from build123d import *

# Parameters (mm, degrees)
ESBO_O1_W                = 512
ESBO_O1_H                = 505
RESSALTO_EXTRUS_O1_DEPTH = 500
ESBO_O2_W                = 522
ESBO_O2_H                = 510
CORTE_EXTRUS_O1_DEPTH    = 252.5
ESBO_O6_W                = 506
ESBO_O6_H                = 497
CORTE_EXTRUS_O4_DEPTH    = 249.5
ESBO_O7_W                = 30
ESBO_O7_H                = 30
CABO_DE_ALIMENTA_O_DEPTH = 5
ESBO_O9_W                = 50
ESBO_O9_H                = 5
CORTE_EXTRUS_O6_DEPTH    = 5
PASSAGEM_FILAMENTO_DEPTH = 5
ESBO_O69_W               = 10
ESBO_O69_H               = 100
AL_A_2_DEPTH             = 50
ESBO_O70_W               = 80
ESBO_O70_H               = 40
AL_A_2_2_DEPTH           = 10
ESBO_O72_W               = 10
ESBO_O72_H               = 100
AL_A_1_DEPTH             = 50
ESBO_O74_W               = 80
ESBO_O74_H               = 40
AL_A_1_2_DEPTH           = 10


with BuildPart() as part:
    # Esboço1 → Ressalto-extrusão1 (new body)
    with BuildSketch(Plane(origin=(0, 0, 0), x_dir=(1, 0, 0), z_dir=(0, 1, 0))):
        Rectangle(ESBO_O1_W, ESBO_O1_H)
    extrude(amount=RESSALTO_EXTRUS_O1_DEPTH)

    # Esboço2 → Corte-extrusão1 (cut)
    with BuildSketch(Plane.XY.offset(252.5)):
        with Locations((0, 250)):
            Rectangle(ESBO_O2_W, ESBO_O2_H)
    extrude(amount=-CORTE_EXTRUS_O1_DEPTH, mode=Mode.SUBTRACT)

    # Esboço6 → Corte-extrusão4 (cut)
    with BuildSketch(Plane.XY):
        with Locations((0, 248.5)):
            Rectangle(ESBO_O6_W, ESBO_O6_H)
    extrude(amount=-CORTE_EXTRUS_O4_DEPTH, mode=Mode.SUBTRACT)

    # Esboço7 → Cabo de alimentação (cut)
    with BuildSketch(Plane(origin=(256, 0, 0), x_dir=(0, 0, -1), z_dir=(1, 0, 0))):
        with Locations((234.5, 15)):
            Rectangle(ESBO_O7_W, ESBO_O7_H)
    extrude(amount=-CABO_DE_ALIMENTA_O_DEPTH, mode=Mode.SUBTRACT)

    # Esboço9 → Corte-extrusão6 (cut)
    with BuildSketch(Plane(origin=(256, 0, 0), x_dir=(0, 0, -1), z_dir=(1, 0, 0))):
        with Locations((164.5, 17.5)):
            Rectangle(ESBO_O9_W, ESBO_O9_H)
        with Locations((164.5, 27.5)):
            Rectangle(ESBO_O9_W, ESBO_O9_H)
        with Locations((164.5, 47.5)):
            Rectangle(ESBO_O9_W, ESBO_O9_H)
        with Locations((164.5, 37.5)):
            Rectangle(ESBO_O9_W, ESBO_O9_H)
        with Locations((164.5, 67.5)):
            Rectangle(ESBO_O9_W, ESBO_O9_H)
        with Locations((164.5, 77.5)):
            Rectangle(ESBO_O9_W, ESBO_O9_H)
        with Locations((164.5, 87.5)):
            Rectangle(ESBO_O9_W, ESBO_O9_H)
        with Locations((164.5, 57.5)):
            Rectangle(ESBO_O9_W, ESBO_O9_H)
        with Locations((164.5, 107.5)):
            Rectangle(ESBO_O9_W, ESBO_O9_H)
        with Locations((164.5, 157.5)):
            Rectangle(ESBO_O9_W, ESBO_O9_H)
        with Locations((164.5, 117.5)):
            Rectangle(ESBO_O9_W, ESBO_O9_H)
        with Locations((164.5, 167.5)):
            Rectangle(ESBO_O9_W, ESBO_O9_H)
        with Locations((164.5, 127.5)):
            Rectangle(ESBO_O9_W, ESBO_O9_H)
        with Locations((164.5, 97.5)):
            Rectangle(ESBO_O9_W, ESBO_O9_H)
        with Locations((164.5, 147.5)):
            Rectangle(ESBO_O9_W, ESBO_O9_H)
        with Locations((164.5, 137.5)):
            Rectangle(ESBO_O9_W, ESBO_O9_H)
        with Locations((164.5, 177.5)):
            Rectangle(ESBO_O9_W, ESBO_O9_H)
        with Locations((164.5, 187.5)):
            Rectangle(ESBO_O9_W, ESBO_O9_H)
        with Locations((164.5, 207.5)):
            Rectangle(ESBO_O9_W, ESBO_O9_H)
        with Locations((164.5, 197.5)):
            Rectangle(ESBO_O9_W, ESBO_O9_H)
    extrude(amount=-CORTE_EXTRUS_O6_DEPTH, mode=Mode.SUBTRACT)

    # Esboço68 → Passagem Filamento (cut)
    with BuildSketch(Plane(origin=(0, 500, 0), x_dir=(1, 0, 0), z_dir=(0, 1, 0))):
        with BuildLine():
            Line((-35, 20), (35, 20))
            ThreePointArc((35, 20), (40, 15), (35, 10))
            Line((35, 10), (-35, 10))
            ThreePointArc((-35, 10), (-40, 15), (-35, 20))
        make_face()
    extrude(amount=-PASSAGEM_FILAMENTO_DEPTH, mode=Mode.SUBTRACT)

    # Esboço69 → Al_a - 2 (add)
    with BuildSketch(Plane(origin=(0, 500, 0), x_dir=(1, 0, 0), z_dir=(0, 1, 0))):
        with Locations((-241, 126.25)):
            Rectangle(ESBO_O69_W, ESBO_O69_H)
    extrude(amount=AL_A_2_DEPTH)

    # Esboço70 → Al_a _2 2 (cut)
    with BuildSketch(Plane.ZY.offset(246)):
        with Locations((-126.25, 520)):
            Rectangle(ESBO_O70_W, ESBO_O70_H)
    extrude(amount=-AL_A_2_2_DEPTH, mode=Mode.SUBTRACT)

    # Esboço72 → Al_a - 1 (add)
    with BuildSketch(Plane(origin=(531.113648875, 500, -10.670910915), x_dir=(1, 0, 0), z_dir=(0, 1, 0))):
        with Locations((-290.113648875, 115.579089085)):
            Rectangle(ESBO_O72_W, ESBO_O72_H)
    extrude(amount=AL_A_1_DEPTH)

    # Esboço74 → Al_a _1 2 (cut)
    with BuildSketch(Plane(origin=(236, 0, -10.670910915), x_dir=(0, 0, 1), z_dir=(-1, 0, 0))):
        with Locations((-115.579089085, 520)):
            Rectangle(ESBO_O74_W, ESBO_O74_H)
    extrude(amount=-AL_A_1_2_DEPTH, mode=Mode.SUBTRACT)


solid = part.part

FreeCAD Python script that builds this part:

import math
import FreeCAD as App
import Part
import Sketcher

doc = App.newDocument("Part")
params = doc.addObject("Spreadsheet::Sheet", "Params")
for row, (alias, value) in enumerate([
    ("sketch1_width", "512 mm"),
    ("sketch1_height", "505 mm"),
    ("pad1_length", "500 mm"),
    ("sketch2_width", "522 mm"),
    ("sketch2_height", "510 mm"),
    ("pocket1_length", "252.5 mm"),
    ("sketch3_width", "506 mm"),
    ("sketch3_height", "497 mm"),
    ("pocket2_length", "249.5 mm"),
    ("sketch4_width", "30 mm"),
    ("pocket3_length", "5 mm"),
    ("sketch5_width", "5 mm"),
    ("sketch5_height", "50 mm"),
    ("pocket4_length", "5 mm"),
    ("sketch6_radius", "5 mm"),
    ("sketch6_width", "70 mm"),
    ("pocket5_length", "5 mm"),
    ("sketch7_width", "10 mm"),
    ("sketch7_height", "100 mm"),
    ("pad2_length", "50 mm"),
    ("sketch8_width", "40 mm"),
    ("sketch8_height", "80 mm"),
    ("pocket6_length", "10 mm"),
    ("sketch9_width", "10 mm"),
    ("sketch9_height", "100 mm"),
    ("pad3_length", "50 mm"),
    ("sketch10_width", "40 mm"),
    ("sketch10_height", "80 mm"),
    ("pocket7_length", "10 mm"),
], start=1):
    params.set(f"A{row}", alias)
    params.set(f"B{row}", "=" + value)
    params.setAlias(f"B{row}", alias)

body = doc.addObject("PartDesign::Body", "Body")

sketch1 = body.newObject("Sketcher::SketchObject", "Sketch")
sketch1.AttachmentSupport = (doc.getObject("XZ_Plane"), [""])
sketch1.MapMode = "FlatFace"
sketch1.addGeometry(Part.LineSegment(App.Vector(-256, -252, 0), App.Vector(-256, 252, 0)), False)
sketch1.addGeometry(Part.LineSegment(App.Vector(-256, 252, 0), App.Vector(256, 252, 0)), False)
sketch1.addGeometry(Part.LineSegment(App.Vector(256, 252, 0), App.Vector(256, -252, 0)), False)
sketch1.addGeometry(Part.LineSegment(App.Vector(256, -252, 0), App.Vector(-256, -252, 0)), False)
sketch1.addConstraint(Sketcher.Constraint("Coincident", 0, 2, 1, 1))
sketch1.addConstraint(Sketcher.Constraint("Coincident", 1, 2, 2, 1))
sketch1.addConstraint(Sketcher.Constraint("Coincident", 2, 2, 3, 1))
sketch1.addConstraint(Sketcher.Constraint("Coincident", 3, 2, 0, 1))
sketch1.addConstraint(Sketcher.Constraint("Vertical", 0))
sketch1.addConstraint(Sketcher.Constraint("Horizontal", 1))
sketch1.addConstraint(Sketcher.Constraint("Vertical", 2))
sketch1.addConstraint(Sketcher.Constraint("Horizontal", 3))
sketch1.addConstraint(Sketcher.Constraint("Symmetric", 0, 2, 2, 2, -1, 1))
sketch1.addConstraint(Sketcher.Constraint("DistanceX", 1, 1, 1, 2, 512.0))
sketch1.addConstraint(Sketcher.Constraint("DistanceY", 0, 1, 0, 2, 505.0))
sketch1.setExpression("Constraints[9]", "Params.sketch1_width")
sketch1.setExpression("Constraints[10]", "Params.sketch1_height")
pad1 = body.newObject("PartDesign::Pad", "Pad")
pad1.Profile = sketch1
pad1.setExpression("Length", "Params.pad1_length")
pad1.Reversed = True

sketch2 = body.newObject("Sketcher::SketchObject", "Sketch001")
sketch2.AttachmentSupport = (doc.getObject("XY_Plane"), [""])
sketch2.MapMode = "FlatFace"
sketch2.AttachmentOffset = App.Placement(App.Vector(0, 0, 252.5), App.Rotation())
sketch2.addGeometry(Part.LineSegment(App.Vector(-261, 505, 0), App.Vector(-261, -5, 0)), False)
sketch2.addGeometry(Part.LineSegment(App.Vector(-261, -5, 0), App.Vector(261, -5, 0)), False)
sketch2.addGeometry(Part.LineSegment(App.Vector(261, -5, 0), App.Vector(261, 505, 0)), False)
sketch2.addGeometry(Part.LineSegment(App.Vector(261, 505, 0), App.Vector(-261, 505, 0)), False)
sketch2.addConstraint(Sketcher.Constraint("Coincident", 0, 2, 1, 1))
sketch2.addConstraint(Sketcher.Constraint("Coincident", 1, 2, 2, 1))
sketch2.addConstraint(Sketcher.Constraint("Coincident", 2, 2, 3, 1))
sketch2.addConstraint(Sketcher.Constraint("Coincident", 3, 2, 0, 1))
sketch2.addConstraint(Sketcher.Constraint("Vertical", 0))
sketch2.addConstraint(Sketcher.Constraint("Horizontal", 1))
sketch2.addConstraint(Sketcher.Constraint("Vertical", 2))
sketch2.addConstraint(Sketcher.Constraint("Horizontal", 3))
sketch2.addConstraint(Sketcher.Constraint("DistanceX", 1, 1, 1, 2, 522.0))
sketch2.addConstraint(Sketcher.Constraint("DistanceY", 0, 2, 0, 1, 510.0))
sketch2.addConstraint(Sketcher.Constraint("DistanceX", 0, 2, -1, 1, 261.0))
sketch2.addConstraint(Sketcher.Constraint("DistanceY", 0, 2, -1, 1, 5.0))
sketch2.setExpression("Constraints[8]", "Params.sketch2_width")
sketch2.setExpression("Constraints[9]", "Params.sketch2_height")
pocket1 = body.newObject("PartDesign::Pocket", "Pocket")
pocket1.Profile = sketch2
pocket1.setExpression("Length", "Params.pocket1_length")

sketch3 = body.newObject("Sketcher::SketchObject", "Sketch002")
sketch3.AttachmentSupport = (doc.getObject("XY_Plane"), [""])
sketch3.MapMode = "FlatFace"
sketch3.addGeometry(Part.LineSegment(App.Vector(-253, 497, 0), App.Vector(-253, 0, 0)), False)
sketch3.addGeometry(Part.LineSegment(App.Vector(-253, 0, 0), App.Vector(253, 0, 0)), False)
sketch3.addGeometry(Part.LineSegment(App.Vector(253, 0, 0), App.Vector(253, 497, 0)), False)
sketch3.addGeometry(Part.LineSegment(App.Vector(253, 497, 0), App.Vector(-253, 497, 0)), False)
sketch3.addConstraint(Sketcher.Constraint("Coincident", 0, 2, 1, 1))
sketch3.addConstraint(Sketcher.Constraint("Coincident", 1, 2, 2, 1))
sketch3.addConstraint(Sketcher.Constraint("Coincident", 2, 2, 3, 1))
sketch3.addConstraint(Sketcher.Constraint("Coincident", 3, 2, 0, 1))
sketch3.addConstraint(Sketcher.Constraint("Vertical", 0))
sketch3.addConstraint(Sketcher.Constraint("Horizontal", 1))
sketch3.addConstraint(Sketcher.Constraint("Vertical", 2))
sketch3.addConstraint(Sketcher.Constraint("Horizontal", 3))
sketch3.addConstraint(Sketcher.Constraint("Symmetric", 0, 2, 1, 2, -1, 1))
sketch3.addConstraint(Sketcher.Constraint("DistanceX", 1, 1, 1, 2, 506.0))
sketch3.addConstraint(Sketcher.Constraint("DistanceY", 0, 2, 0, 1, 497.0))
sketch3.setExpression("Constraints[9]", "Params.sketch3_width")
sketch3.setExpression("Constraints[10]", "Params.sketch3_height")
pocket2 = body.newObject("PartDesign::Pocket", "Pocket001")
pocket2.Profile = sketch3
pocket2.setExpression("Length", "Params.pocket2_length")

sketch4 = body.newObject("Sketcher::SketchObject", "Sketch003")
sketch4.AttachmentSupport = (doc.getObject("YZ_Plane"), [""])
sketch4.MapMode = "FlatFace"
sketch4.AttachmentOffset = App.Placement(App.Vector(0, 0, 256), App.Rotation())
sketch4.addGeometry(Part.LineSegment(App.Vector(30, -220, 0), App.Vector(0, -220, 0)), False)
sketch4.addGeometry(Part.LineSegment(App.Vector(0, -220, 0), App.Vector(0, -250, 0)), False)
sketch4.addGeometry(Part.LineSegment(App.Vector(0, -250, 0), App.Vector(30, -250, 0)), False)
sketch4.addGeometry(Part.LineSegment(App.Vector(30, -250, 0), App.Vector(30, -220, 0)), False)
sketch4.addConstraint(Sketcher.Constraint("Coincident", 0, 2, 1, 1))
sketch4.addConstraint(Sketcher.Constraint("Coincident", 1, 2, 2, 1))
sketch4.addConstraint(Sketcher.Constraint("Coincident", 2, 2, 3, 1))
sketch4.addConstraint(Sketcher.Constraint("Coincident", 3, 2, 0, 1))
sketch4.addConstraint(Sketcher.Constraint("Horizontal", 0))
sketch4.addConstraint(Sketcher.Constraint("Vertical", 1))
sketch4.addConstraint(Sketcher.Constraint("Horizontal", 2))
sketch4.addConstraint(Sketcher.Constraint("Vertical", 3))
sketch4.addConstraint(Sketcher.Constraint("PointOnObject", 0, 2, -2))
sketch4.addConstraint(Sketcher.Constraint("Equal", 2, 1))
sketch4.addConstraint(Sketcher.Constraint("DistanceX", 0, 2, 0, 1, 30.0))
sketch4.addConstraint(Sketcher.Constraint("DistanceY", 0, 2, -1, 1, 219.5))
sketch4.setExpression("Constraints[10]", "Params.sketch4_width")
pocket3 = body.newObject("PartDesign::Pocket", "Pocket002")
pocket3.Profile = sketch4
pocket3.setExpression("Length", "Params.pocket3_length")

sketch5 = body.newObject("Sketcher::SketchObject", "Sketch004")
sketch5.AttachmentSupport = (doc.getObject("YZ_Plane"), [""])
sketch5.MapMode = "FlatFace"
sketch5.AttachmentOffset = App.Placement(App.Vector(0, 0, 256), App.Rotation())
sketch5.addGeometry(Part.LineSegment(App.Vector(20, -140, 0), App.Vector(15, -140, 0)), False)
sketch5.addGeometry(Part.LineSegment(App.Vector(15, -140, 0), App.Vector(15, -190, 0)), False)
sketch5.addGeometry(Part.LineSegment(App.Vector(15, -190, 0), App.Vector(20, -190, 0)), False)
sketch5.addGeometry(Part.LineSegment(App.Vector(20, -190, 0), App.Vector(20, -140, 0)), False)
sketch5.addGeometry(Part.LineSegment(App.Vector(30, -140, 0), App.Vector(25, -140, 0)), False)
sketch5.addGeometry(Part.LineSegment(App.Vector(25, -140, 0), App.Vector(25, -190, 0)), False)
sketch5.addGeometry(Part.LineSegment(App.Vector(25, -190, 0), App.Vector(30, -190, 0)), False)
sketch5.addGeometry(Part.LineSegment(App.Vector(30, -190, 0), App.Vector(30, -140, 0)), False)
sketch5.addGeometry(Part.LineSegment(App.Vector(50, -140, 0), App.Vector(45, -140, 0)), False)
sketch5.addGeometry(Part.LineSegment(App.Vector(45, -140, 0), App.Vector(45, -190, 0)), False)
sketch5.addGeometry(Part.LineSegment(App.Vector(45, -190, 0), App.Vector(50, -190, 0)), False)
sketch5.addGeometry(Part.LineSegment(App.Vector(50, -190, 0), App.Vector(50, -140, 0)), False)
sketch5.addGeometry(Part.LineSegment(App.Vector(40, -140, 0), App.Vector(35, -140, 0)), False)
sketch5.addGeometry(Part.LineSegment(App.Vector(35, -140, 0), App.Vector(35, -190, 0)), False)
sketch5.addGeometry(Part.LineSegment(App.Vector(35, -190, 0), App.Vector(40, -190, 0)), False)
sketch5.addGeometry(Part.LineSegment(App.Vector(40, -190, 0), App.Vector(40, -140, 0)), False)
sketch5.addGeometry(Part.LineSegment(App.Vector(70, -140, 0), App.Vector(65, -140, 0)), False)
sketch5.addGeometry(Part.LineSegment(App.Vector(65, -140, 0), App.Vector(65, -190, 0)), False)
sketch5.addGeometry(Part.LineSegment(App.Vector(65, -190, 0), App.Vector(70, -190, 0)), False)
sketch5.addGeometry(Part.LineSegment(App.Vector(70, -190, 0), App.Vector(70, -140, 0)), False)
sketch5.addGeometry(Part.LineSegment(App.Vector(80, -140, 0), App.Vector(75, -140, 0)), False)
sketch5.addGeometry(Part.LineSegment(App.Vector(75, -140, 0), App.Vector(75, -190, 0)), False)
sketch5.addGeometry(Part.LineSegment(App.Vector(75, -190, 0), App.Vector(80, -190, 0)), False)
sketch5.addGeometry(Part.LineSegment(App.Vector(80, -190, 0), App.Vector(80, -140, 0)), False)
sketch5.addGeometry(Part.LineSegment(App.Vector(90, -140, 0), App.Vector(85, -140, 0)), False)
sketch5.addGeometry(Part.LineSegment(App.Vector(85, -140, 0), App.Vector(85, -190, 0)), False)
sketch5.addGeometry(Part.LineSegment(App.Vector(85, -190, 0), App.Vector(90, -190, 0)), False)
sketch5.addGeometry(Part.LineSegment(App.Vector(90, -190, 0), App.Vector(90, -140, 0)), False)
sketch5.addGeometry(Part.LineSegment(App.Vector(60, -140, 0), App.Vector(55, -140, 0)), False)
sketch5.addGeometry(Part.LineSegment(App.Vector(55, -140, 0), App.Vector(55, -190, 0)), False)
sketch5.addGeometry(Part.LineSegment(App.Vector(55, -190, 0), App.Vector(60, -190, 0)), False)
sketch5.addGeometry(Part.LineSegment(App.Vector(60, -190, 0), App.Vector(60, -140, 0)), False)
sketch5.addGeometry(Part.LineSegment(App.Vector(110, -140, 0), App.Vector(105, -140, 0)), False)
sketch5.addGeometry(Part.LineSegment(App.Vector(105, -140, 0), App.Vector(105, -190, 0)), False)
sketch5.addGeometry(Part.LineSegment(App.Vector(105, -190, 0), App.Vector(110, -190, 0)), False)
sketch5.addGeometry(Part.LineSegment(App.Vector(110, -190, 0), App.Vector(110, -140, 0)), False)
sketch5.addGeometry(Part.LineSegment(App.Vector(160, -140, 0), App.Vector(155, -140, 0)), False)
sketch5.addGeometry(Part.LineSegment(App.Vector(155, -140, 0), App.Vector(155, -190, 0)), False)
sketch5.addGeometry(Part.LineSegment(App.Vector(155, -190, 0), App.Vector(160, -190, 0)), False)
sketch5.addGeometry(Part.LineSegment(App.Vector(160, -190, 0), App.Vector(160, -140, 0)), False)
sketch5.addGeometry(Part.LineSegment(App.Vector(120, -140, 0), App.Vector(115, -140, 0)), False)
sketch5.addGeometry(Part.LineSegment(App.Vector(115, -140, 0), App.Vector(115, -190, 0)), False)
sketch5.addGeometry(Part.LineSegment(App.Vector(115, -190, 0), App.Vector(120, -190, 0)), False)
sketch5.addGeometry(Part.LineSegment(App.Vector(120, -190, 0), App.Vector(120, -140, 0)), False)
sketch5.addGeometry(Part.LineSegment(App.Vector(170, -140, 0), App.Vector(165, -140, 0)), False)
sketch5.addGeometry(Part.LineSegment(App.Vector(165, -140, 0), App.Vector(165, -190, 0)), False)
sketch5.addGeometry(Part.LineSegment(App.Vector(165, -190, 0), App.Vector(170, -190, 0)), False)
sketch5.addGeometry(Part.LineSegment(App.Vector(170, -190, 0), App.Vector(170, -140, 0)), False)
sketch5.addGeometry(Part.LineSegment(App.Vector(130, -140, 0), App.Vector(125, -140, 0)), False)
sketch5.addGeometry(Part.LineSegment(App.Vector(125, -140, 0), App.Vector(125, -190, 0)), False)
sketch5.addGeometry(Part.LineSegment(App.Vector(125, -190, 0), App.Vector(130, -190, 0)), False)
sketch5.addGeometry(Part.LineSegment(App.Vector(130, -190, 0), App.Vector(130, -140, 0)), False)
sketch5.addGeometry(Part.LineSegment(App.Vector(100, -140, 0), App.Vector(95, -140, 0)), False)
sketch5.addGeometry(Part.LineSegment(App.Vector(95, -140, 0), App.Vector(95, -190, 0)), False)
sketch5.addGeometry(Part.LineSegment(App.Vector(95, -190, 0), App.Vector(100, -190, 0)), False)
sketch5.addGeometry(Part.LineSegment(App.Vector(100, -190, 0), App.Vector(100, -140, 0)), False)
sketch5.addGeometry(Part.LineSegment(App.Vector(150, -140, 0), App.Vector(145, -140, 0)), False)
sketch5.addGeometry(Part.LineSegment(App.Vector(145, -140, 0), App.Vector(145, -190, 0)), False)
sketch5.addGeometry(Part.LineSegment(App.Vector(145, -190, 0), App.Vector(150, -190, 0)), False)
sketch5.addGeometry(Part.LineSegment(App.Vector(150, -190, 0), App.Vector(150, -140, 0)), False)
sketch5.addGeometry(Part.LineSegment(App.Vector(140, -140, 0), App.Vector(135, -140, 0)), False)
sketch5.addGeometry(Part.LineSegment(App.Vector(135, -140, 0), App.Vector(135, -190, 0)), False)
sketch5.addGeometry(Part.LineSegment(App.Vector(135, -190, 0), App.Vector(140, -190, 0)), False)
sketch5.addGeometry(Part.LineSegment(App.Vector(140, -190, 0), App.Vector(140, -140, 0)), False)
sketch5.addGeometry(Part.LineSegment(App.Vector(180, -140, 0), App.Vector(175, -140, 0)), False)
sketch5.addGeometry(Part.LineSegment(App.Vector(175, -140, 0), App.Vector(175, -190, 0)), False)
sketch5.addGeometry(Part.LineSegment(App.Vector(175, -190, 0), App.Vector(180, -190, 0)), False)
sketch5.addGeometry(Part.LineSegment(App.Vector(180, -190, 0), App.Vector(180, -140, 0)), False)
sketch5.addGeometry(Part.LineSegment(App.Vector(190, -140, 0), App.Vector(185, -140, 0)), False)
sketch5.addGeometry(Part.LineSegment(App.Vector(185, -140, 0), App.Vector(185, -190, 0)), False)
sketch5.addGeometry(Part.LineSegment(App.Vector(185, -190, 0), App.Vector(190, -190, 0)), False)
sketch5.addGeometry(Part.LineSegment(App.Vector(190, -190, 0), App.Vector(190, -140, 0)), False)
sketch5.addGeometry(Part.LineSegment(App.Vector(210, -140, 0), App.Vector(205, -140, 0)), False)
sketch5.addGeometry(Part.LineSegment(App.Vector(205, -140, 0), App.Vector(205, -190, 0)), False)
sketch5.addGeometry(Part.LineSegment(App.Vector(205, -190, 0), App.Vector(210, -190, 0)), False)
sketch5.addGeometry(Part.LineSegment(App.Vector(210, -190, 0), App.Vector(210, -140, 0)), False)
sketch5.addGeometry(Part.LineSegment(App.Vector(200, -140, 0), App.Vector(195, -140, 0)), False)
sketch5.addGeometry(Part.LineSegment(App.Vector(195, -140, 0), App.Vector(195, -190, 0)), False)
sketch5.addGeometry(Part.LineSegment(App.Vector(195, -190, 0), App.Vector(200, -190, 0)), False)
sketch5.addGeometry(Part.LineSegment(App.Vector(200, -190, 0), App.Vector(200, -140, 0)), False)
sketch5.addConstraint(Sketcher.Constraint("Coincident", 0, 2, 1, 1))
sketch5.addConstraint(Sketcher.Constraint("Coincident", 1, 2, 2, 1))
sketch5.addConstraint(Sketcher.Constraint("Coincident", 2, 2, 3, 1))
sketch5.addConstraint(Sketcher.Constraint("Coincident", 3, 2, 0, 1))
sketch5.addConstraint(Sketcher.Constraint("Coincident", 4, 2, 5, 1))
sketch5.addConstraint(Sketcher.Constraint("Coincident", 5, 2, 6, 1))
sketch5.addConstraint(Sketcher.Constraint("Coincident", 6, 2, 7, 1))
sketch5.addConstraint(Sketcher.Constraint("Coincident", 7, 2, 4, 1))
sketch5.addConstraint(Sketcher.Constraint("Coincident", 8, 2, 9, 1))
sketch5.addConstraint(Sketcher.Constraint("Coincident", 9, 2, 10, 1))
sketch5.addConstraint(Sketcher.Constraint("Coincident", 10, 2, 11, 1))
sketch5.addConstraint(Sketcher.Constraint("Coincident", 11, 2, 8, 1))
sketch5.addConstraint(Sketcher.Constraint("Coincident", 12, 2, 13, 1))
sketch5.addConstraint(Sketcher.Constraint("Coincident", 13, 2, 14, 1))
sketch5.addConstraint(Sketcher.Constraint("Coincident", 14, 2, 15, 1))
sketch5.addConstraint(Sketcher.Constraint("Coincident", 15, 2, 12, 1))
sketch5.addConstraint(Sketcher.Constraint("Coincident", 16, 2, 17, 1))
sketch5.addConstraint(Sketcher.Constraint("Coincident", 17, 2, 18, 1))
sketch5.addConstraint(Sketcher.Constraint("Coincident", 18, 2, 19, 1))
sketch5.addConstraint(Sketcher.Constraint("Coincident", 19, 2, 16, 1))
sketch5.addConstraint(Sketcher.Constraint("Coincident", 20, 2, 21, 1))
sketch5.addConstraint(Sketcher.Constraint("Coincident", 21, 2, 22, 1))
sketch5.addConstraint(Sketcher.Constraint("Coincident", 22, 2, 23, 1))
sketch5.addConstraint(Sketcher.Constraint("Coincident", 23, 2, 20, 1))
sketch5.addConstraint(Sketcher.Constraint("Coincident", 24, 2, 25, 1))
sketch5.addConstraint(Sketcher.Constraint("Coincident", 25, 2, 26, 1))
sketch5.addConstraint(Sketcher.Constraint("Coincident", 26, 2, 27, 1))
sketch5.addConstraint(Sketcher.Constraint("Coincident", 27, 2, 24, 1))
sketch5.addConstraint(Sketcher.Constraint("Coincident", 28, 2, 29, 1))
sketch5.addConstraint(Sketcher.Constraint("Coincident", 29, 2, 30, 1))
sketch5.addConstraint(Sketcher.Constraint("Coincident", 30, 2, 31, 1))
sketch5.addConstraint(Sketcher.Constraint("Coincident", 31, 2, 28, 1))
sketch5.addConstraint(Sketcher.Constraint("Coincident", 32, 2, 33, 1))
sketch5.addConstraint(Sketcher.Constraint("Coincident", 33, 2, 34, 1))
sketch5.addConstraint(Sketcher.Constraint("Coincident", 34, 2, 35, 1))
sketch5.addConstraint(Sketcher.Constraint("Coincident", 35, 2, 32, 1))
sketch5.addConstraint(Sketcher.Constraint("Coincident", 36, 2, 37, 1))
sketch5.addConstraint(Sketcher.Constraint("Coincident", 37, 2, 38, 1))
sketch5.addConstraint(Sketcher.Constraint("Coincident", 38, 2, 39, 1))
sketch5.addConstraint(Sketcher.Constraint("Coincident", 39, 2, 36, 1))
sketch5.addConstraint(Sketcher.Constraint("Coincident", 40, 2, 41, 1))
sketch5.addConstraint(Sketcher.Constraint("Coincident", 41, 2, 42, 1))
sketch5.addConstraint(Sketcher.Constraint("Coincident", 42, 2, 43, 1))
sketch5.addConstraint(Sketcher.Constraint("Coincident", 43, 2, 40, 1))
sketch5.addConstraint(Sketcher.Constraint("Coincident", 44, 2, 45, 1))
sketch5.addConstraint(Sketcher.Constraint("Coincident", 45, 2, 46, 1))
sketch5.addConstraint(Sketcher.Constraint("Coincident", 46, 2, 47, 1))
sketch5.addConstraint(Sketcher.Constraint("Coincident", 47, 2, 44, 1))
sketch5.addConstraint(Sketcher.Constraint("Coincident", 48, 2, 49, 1))
sketch5.addConstraint(Sketcher.Constraint("Coincident", 49, 2, 50, 1))
sketch5.addConstraint(Sketcher.Constraint("Coincident", 50, 2, 51, 1))
sketch5.addConstraint(Sketcher.Constraint("Coincident", 51, 2, 48, 1))
sketch5.addConstraint(Sketcher.Constraint("Coincident", 52, 2, 53, 1))
sketch5.addConstraint(Sketcher.Constraint("Coincident", 53, 2, 54, 1))
sketch5.addConstraint(Sketcher.Constraint("Coincident", 54, 2, 55, 1))
sketch5.addConstraint(Sketcher.Constraint("Coincident", 55, 2, 52, 1))
sketch5.addConstraint(Sketcher.Constraint("Coincident", 56, 2, 57, 1))
sketch5.addConstraint(Sketcher.Constraint("Coincident", 57, 2, 58, 1))
sketch5.addConstraint(Sketcher.Constraint("Coincident", 58, 2, 59, 1))
sketch5.addConstraint(Sketcher.Constraint("Coincident", 59, 2, 56, 1))
sketch5.addConstraint(Sketcher.Constraint("Coincident", 60, 2, 61, 1))
sketch5.addConstraint(Sketcher.Constraint("Coincident", 61, 2, 62, 1))
sketch5.addConstraint(Sketcher.Constraint("Coincident", 62, 2, 63, 1))
sketch5.addConstraint(Sketcher.Constraint("Coincident", 63, 2, 60, 1))
sketch5.addConstraint(Sketcher.Constraint("Coincident", 64, 2, 65, 1))
sketch5.addConstraint(Sketcher.Constraint("Coincident", 65, 2, 66, 1))
sketch5.addConstraint(Sketcher.Constraint("Coincident", 66, 2, 67, 1))
sketch5.addConstraint(Sketcher.Constraint("Coincident", 67, 2, 64, 1))
sketch5.addConstraint(Sketcher.Constraint("Coincident", 68, 2, 69, 1))
sketch5.addConstraint(Sketcher.Constraint("Coincident", 69, 2, 70, 1))
sketch5.addConstraint(Sketcher.Constraint("Coincident", 70, 2, 71, 1))
sketch5.addConstraint(Sketcher.Constraint("Coincident", 71, 2, 68, 1))
sketch5.addConstraint(Sketcher.Constraint("Coincident", 72, 2, 73, 1))
sketch5.addConstraint(Sketcher.Constraint("Coincident", 73, 2, 74, 1))
sketch5.addConstraint(Sketcher.Constraint("Coincident", 74, 2, 75, 1))
sketch5.addConstraint(Sketcher.Constraint("Coincident", 75, 2, 72, 1))
sketch5.addConstraint(Sketcher.Constraint("Coincident", 76, 2, 77, 1))
sketch5.addConstraint(Sketcher.Constraint("Coincident", 77, 2, 78, 1))
sketch5.addConstraint(Sketcher.Constraint("Coincident", 78, 2, 79, 1))
sketch5.addConstraint(Sketcher.Constraint("Coincident", 79, 2, 76, 1))
sketch5.addConstraint(Sketcher.Constraint("Horizontal", 0))
sketch5.addConstraint(Sketcher.Constraint("Vertical", 1))
sketch5.addConstraint(Sketcher.Constraint("Horizontal", 2))
sketch5.addConstraint(Sketcher.Constraint("Vertical", 3))
sketch5.addConstraint(Sketcher.Constraint("Horizontal", 4))
sketch5.addConstraint(Sketcher.Constraint("Vertical", 5))
sketch5.addConstraint(Sketcher.Constraint("Horizontal", 6))
sketch5.addConstraint(Sketcher.Constraint("Vertical", 7))
sketch5.addConstraint(Sketcher.Constraint("Horizontal", 8))
sketch5.addConstraint(Sketcher.Constraint("Vertical", 9))
sketch5.addConstraint(Sketcher.Constraint("Horizontal", 10))
sketch5.addConstraint(Sketcher.Constraint("Vertical", 11))
sketch5.addConstraint(Sketcher.Constraint("Horizontal", 12))
sketch5.addConstraint(Sketcher.Constraint("Vertical", 13))
sketch5.addConstraint(Sketcher.Constraint("Horizontal", 14))
sketch5.addConstraint(Sketcher.Constraint("Vertical", 15))
sketch5.addConstraint(Sketcher.Constraint("Horizontal", 16))
sketch5.addConstraint(Sketcher.Constraint("Vertical", 17))
sketch5.addConstraint(Sketcher.Constraint("Horizontal", 18))
sketch5.addConstraint(Sketcher.Constraint("Vertical", 19))
sketch5.addConstraint(Sketcher.Constraint("Horizontal", 20))
sketch5.addConstraint(Sketcher.Constraint("Vertical", 21))
sketch5.addConstraint(Sketcher.Constraint("Horizontal", 22))
sketch5.addConstraint(Sketcher.Constraint("Vertical", 23))
sketch5.addConstraint(Sketcher.Constraint("Horizontal", 24))
sketch5.addConstraint(Sketcher.Constraint("Vertical", 25))
sketch5.addConstraint(Sketcher.Constraint("Horizontal", 26))
sketch5.addConstraint(Sketcher.Constraint("Vertical", 27))
sketch5.addConstraint(Sketcher.Constraint("Horizontal", 28))
sketch5.addConstraint(Sketcher.Constraint("Vertical", 29))
sketch5.addConstraint(Sketcher.Constraint("Horizontal", 30))
sketch5.addConstraint(Sketcher.Constraint("Vertical", 31))
sketch5.addConstraint(Sketcher.Constraint("Horizontal", 32))
sketch5.addConstraint(Sketcher.Constraint("Vertical", 33))
sketch5.addConstraint(Sketcher.Constraint("Horizontal", 34))
sketch5.addConstraint(Sketcher.Constraint("Vertical", 35))
sketch5.addConstraint(Sketcher.Constraint("Horizontal", 36))
sketch5.addConstraint(Sketcher.Constraint("Vertical", 37))
sketch5.addConstraint(Sketcher.Constraint("Horizontal", 38))
sketch5.addConstraint(Sketcher.Constraint("Vertical", 39))
sketch5.addConstraint(Sketcher.Constraint("Horizontal", 40))
sketch5.addConstraint(Sketcher.Constraint("Vertical", 41))
sketch5.addConstraint(Sketcher.Constraint("Horizontal", 42))
sketch5.addConstraint(Sketcher.Constraint("Vertical", 43))
sketch5.addConstraint(Sketcher.Constraint("Horizontal", 44))
sketch5.addConstraint(Sketcher.Constraint("Vertical", 45))
sketch5.addConstraint(Sketcher.Constraint("Horizontal", 46))
sketch5.addConstraint(Sketcher.Constraint("Vertical", 47))
sketch5.addConstraint(Sketcher.Constraint("Horizontal", 48))
sketch5.addConstraint(Sketcher.Constraint("Vertical", 49))
sketch5.addConstraint(Sketcher.Constraint("Horizontal", 50))
sketch5.addConstraint(Sketcher.Constraint("Vertical", 51))
sketch5.addConstraint(Sketcher.Constraint("Horizontal", 52))
sketch5.addConstraint(Sketcher.Constraint("Vertical", 53))
sketch5.addConstraint(Sketcher.Constraint("Horizontal", 54))
sketch5.addConstraint(Sketcher.Constraint("Vertical", 55))
sketch5.addConstraint(Sketcher.Constraint("Horizontal", 56))
sketch5.addConstraint(Sketcher.Constraint("Vertical", 57))
sketch5.addConstraint(Sketcher.Constraint("Horizontal", 58))
sketch5.addConstraint(Sketcher.Constraint("Vertical", 59))
sketch5.addConstraint(Sketcher.Constraint("Horizontal", 60))
sketch5.addConstraint(Sketcher.Constraint("Vertical", 61))
sketch5.addConstraint(Sketcher.Constraint("Horizontal", 62))
sketch5.addConstraint(Sketcher.Constraint("Vertical", 63))
sketch5.addConstraint(Sketcher.Constraint("Horizontal", 64))
sketch5.addConstraint(Sketcher.Constraint("Vertical", 65))
sketch5.addConstraint(Sketcher.Constraint("Horizontal", 66))
sketch5.addConstraint(Sketcher.Constraint("Vertical", 67))
sketch5.addConstraint(Sketcher.Constraint("Horizontal", 68))
sketch5.addConstraint(Sketcher.Constraint("Vertical", 69))
sketch5.addConstraint(Sketcher.Constraint("Horizontal", 70))
sketch5.addConstraint(Sketcher.Constraint("Vertical", 71))
sketch5.addConstraint(Sketcher.Constraint("Horizontal", 72))
sketch5.addConstraint(Sketcher.Constraint("Vertical", 73))
sketch5.addConstraint(Sketcher.Constraint("Horizontal", 74))
sketch5.addConstraint(Sketcher.Constraint("Vertical", 75))
sketch5.addConstraint(Sketcher.Constraint("Horizontal", 76))
sketch5.addConstraint(Sketcher.Constraint("Vertical", 77))
sketch5.addConstraint(Sketcher.Constraint("Horizontal", 78))
sketch5.addConstraint(Sketcher.Constraint("Vertical", 79))
sketch5.addConstraint(Sketcher.Constraint("Horizontal", 3, 2, 4, 2))
sketch5.addConstraint(Sketcher.Constraint("Horizontal", 2, 2, 5, 2))
sketch5.addConstraint(Sketcher.Constraint("Horizontal", 7, 2, 8, 2))
sketch5.addConstraint(Sketcher.Constraint("Horizontal", 6, 2, 9, 2))
sketch5.addConstraint(Sketcher.Constraint("Horizontal", 11, 2, 12, 2))
sketch5.addConstraint(Sketcher.Constraint("Horizontal", 10, 2, 13, 2))
sketch5.addConstraint(Sketcher.Constraint("Horizontal", 15, 2, 16, 2))
sketch5.addConstraint(Sketcher.Constraint("Horizontal", 14, 2, 17, 2))
sketch5.addConstraint(Sketcher.Constraint("Horizontal", 19, 2, 20, 2))
sketch5.addConstraint(Sketcher.Constraint("Horizontal", 18, 2, 21, 2))
sketch5.addConstraint(Sketcher.Constraint("Horizontal", 23, 2, 24, 2))
sketch5.addConstraint(Sketcher.Constraint("Horizontal", 22, 2, 25, 2))
sketch5.addConstraint(Sketcher.Constraint("Horizontal", 27, 2, 28, 2))
sketch5.addConstraint(Sketcher.Constraint("Horizontal", 26, 2, 29, 2))
sketch5.addConstraint(Sketcher.Constraint("Horizontal", 31, 2, 32, 2))
sketch5.addConstraint(Sketcher.Constraint("Horizontal", 30, 2, 33, 2))
sketch5.addConstraint(Sketcher.Constraint("Horizontal", 35, 2, 36, 2))
sketch5.addConstraint(Sketcher.Constraint("Horizontal", 34, 2, 37, 2))
sketch5.addConstraint(Sketcher.Constraint("Horizontal", 39, 2, 40, 2))
sketch5.addConstraint(Sketcher.Constraint("Horizontal", 38, 2, 41, 2))
sketch5.addConstraint(Sketcher.Constraint("Horizontal", 43, 2, 44, 2))
sketch5.addConstraint(Sketcher.Constraint("Horizontal", 42, 2, 45, 2))
sketch5.addConstraint(Sketcher.Constraint("Horizontal", 47, 2, 48, 2))
sketch5.addConstraint(Sketcher.Constraint("Horizontal", 46, 2, 49, 2))
sketch5.addConstraint(Sketcher.Constraint("Horizontal", 51, 2, 52, 2))
sketch5.addConstraint(Sketcher.Constraint("Horizontal", 50, 2, 53, 2))
sketch5.addConstraint(Sketcher.Constraint("Horizontal", 55, 2, 56, 2))
sketch5.addConstraint(Sketcher.Constraint("Horizontal", 54, 2, 57, 2))
sketch5.addConstraint(Sketcher.Constraint("Horizontal", 59, 2, 60, 2))
sketch5.addConstraint(Sketcher.Constraint("Horizontal", 58, 2, 61, 2))
sketch5.addConstraint(Sketcher.Constraint("Horizontal", 63, 2, 64, 2))
sketch5.addConstraint(Sketcher.Constraint("Horizontal", 62, 2, 65, 2))
sketch5.addConstraint(Sketcher.Constraint("Horizontal", 67, 2, 68, 2))
sketch5.addConstraint(Sketcher.Constraint("Horizontal", 66, 2, 69, 2))
sketch5.addConstraint(Sketcher.Constraint("Horizontal", 71, 2, 72, 2))
sketch5.addConstraint(Sketcher.Constraint("Horizontal", 70, 2, 73, 2))
sketch5.addConstraint(Sketcher.Constraint("Horizontal", 75, 2, 76, 2))
sketch5.addConstraint(Sketcher.Constraint("Horizontal", 74, 2, 77, 2))
sketch5.addConstraint(Sketcher.Constraint("Equal", 2, 4))
sketch5.addConstraint(Sketcher.Constraint("Equal", 6, 8))
sketch5.addConstraint(Sketcher.Constraint("Equal", 10, 12))
sketch5.addConstraint(Sketcher.Constraint("Equal", 14, 16))
sketch5.addConstraint(Sketcher.Constraint("Equal", 18, 20))
sketch5.addConstraint(Sketcher.Constraint("Equal", 22, 24))
sketch5.addConstraint(Sketcher.Constraint("Equal", 26, 28))
sketch5.addConstraint(Sketcher.Constraint("Equal", 30, 32))
sketch5.addConstraint(Sketcher.Constraint("Equal", 34, 36))
sketch5.addConstraint(Sketcher.Constraint("Equal", 38, 40))
sketch5.addConstraint(Sketcher.Constraint("Equal", 42, 44))
sketch5.addConstraint(Sketcher.Constraint("Equal", 46, 48))
sketch5.addConstraint(Sketcher.Constraint("Equal", 50, 52))
sketch5.addConstraint(Sketcher.Constraint("Equal", 54, 56))
sketch5.addConstraint(Sketcher.Constraint("Equal", 58, 60))
sketch5.addConstraint(Sketcher.Constraint("Equal", 62, 64))
sketch5.addConstraint(Sketcher.Constraint("Equal", 66, 68))
sketch5.addConstraint(Sketcher.Constraint("Equal", 70, 72))
sketch5.addConstraint(Sketcher.Constraint("Equal", 74, 76))
sketch5.addConstraint(Sketcher.Constraint("DistanceX", 0, 2, 0, 1, 5.0))
sketch5.addConstraint(Sketcher.Constraint("DistanceY", 1, 2, 1, 1, 50.0))
sketch5.addConstraint(Sketcher.Constraint("DistanceX", -1, 1, 0, 2, 15.0))
sketch5.addConstraint(Sketcher.Constraint("DistanceX", -1, 1, 4, 2, 25.0))
sketch5.addConstraint(Sketcher.Constraint("DistanceX", -1, 1, 8, 2, 45.0))
sketch5.addConstraint(Sketcher.Constraint("DistanceX", -1, 1, 12, 2, 35.0))
sketch5.addConstraint(Sketcher.Constraint("DistanceX", -1, 1, 16, 2, 65.0))
sketch5.addConstraint(Sketcher.Constraint("DistanceX", -1, 1, 20, 2, 75.0))
sketch5.addConstraint(Sketcher.Constraint("DistanceX", -1, 1, 24, 2, 85.0))
sketch5.addConstraint(Sketcher.Constraint("DistanceX", -1, 1, 28, 2, 55.0))
sketch5.addConstraint(Sketcher.Constraint("DistanceX", -1, 1, 32, 2, 105.0))
sketch5.addConstraint(Sketcher.Constraint("DistanceX", -1, 1, 36, 2, 155.0))
sketch5.addConstraint(Sketcher.Constraint("DistanceX", -1, 1, 40, 2, 115.0))
sketch5.addConstraint(Sketcher.Constraint("DistanceX", -1, 1, 44, 2, 165.0))
sketch5.addConstraint(Sketcher.Constraint("DistanceX", -1, 1, 48, 2, 125.0))
sketch5.addConstraint(Sketcher.Constraint("DistanceX", -1, 1, 52, 2, 95.0))
sketch5.addConstraint(Sketcher.Constraint("DistanceX", -1, 1, 56, 2, 145.0))
sketch5.addConstraint(Sketcher.Constraint("DistanceX", -1, 1, 60, 2, 135.0))
sketch5.addConstraint(Sketcher.Constraint("DistanceX", -1, 1, 64, 2, 175.0))
sketch5.addConstraint(Sketcher.Constraint("DistanceX", -1, 1, 68, 2, 185.0))
sketch5.addConstraint(Sketcher.Constraint("DistanceX", -1, 1, 72, 2, 205.0))
sketch5.addConstraint(Sketcher.Constraint("DistanceX", -1, 1, 76, 2, 195.0))
sketch5.addConstraint(Sketcher.Constraint("DistanceY", 0, 2, -1, 1, 139.5))
sketch5.setExpression("Constraints[217]", "Params.sketch5_width")
sketch5.setExpression("Constraints[218]", "Params.sketch5_height")
pocket4 = body.newObject("PartDesign::Pocket", "Pocket003")
pocket4.Profile = sketch5
pocket4.setExpression("Length", "Params.pocket4_length")

sketch6 = body.newObject("Sketcher::SketchObject", "Sketch005")
sketch6.AttachmentSupport = (doc.getObject("XZ_Plane"), [""])
sketch6.MapMode = "FlatFace"
sketch6.AttachmentOffset = App.Placement(App.Vector(0, 0, -500), App.Rotation())
sketch6.addGeometry(Part.LineSegment(App.Vector(35, -20, 0), App.Vector(-35, -20, 0)), False)
sketch6.addGeometry(Part.ArcOfCircle(Part.Circle(App.Vector(-35, -15, 0), App.Vector(0, 0, 1), 5), math.radians(90), math.radians(270)), False)
sketch6.addGeometry(Part.LineSegment(App.Vector(-35, -10, 0), App.Vector(35, -10, 0)), False)
sketch6.addGeometry(Part.ArcOfCircle(Part.Circle(App.Vector(35, -15, 0), App.Vector(0, 0, 1), 5), math.radians(-90), math.radians(90)), False)
sketch6.addConstraint(Sketcher.Constraint("Tangent", 0, 2, 1, 2))
sketch6.addConstraint(Sketcher.Constraint("Tangent", 1, 1, 2, 1))
sketch6.addConstraint(Sketcher.Constraint("Tangent", 2, 2, 3, 2))
sketch6.addConstraint(Sketcher.Constraint("Tangent", 3, 1, 0, 1))
sketch6.addConstraint(Sketcher.Constraint("Horizontal", 0))
sketch6.addConstraint(Sketcher.Constraint("Horizontal", 2))
sketch6.addConstraint(Sketcher.Constraint("Radius", 1, 5.0))
sketch6.addConstraint(Sketcher.Constraint("DistanceX", 0, 2, 0, 1, 70.0))
sketch6.addConstraint(Sketcher.Constraint("DistanceX", 1, 3, -1, 1, 35.0))
sketch6.addConstraint(Sketcher.Constraint("DistanceY", 1, 3, -1, 1, 15.0))
sketch6.setExpression("Constraints[6]", "Params.sketch6_radius")
sketch6.setExpression("Constraints[7]", "Params.sketch6_width")
pocket5 = body.newObject("PartDesign::Pocket", "Pocket004")
pocket5.Profile = sketch6
pocket5.setExpression("Length", "Params.pocket5_length")
pocket5.Reversed = True

sketch7 = body.newObject("Sketcher::SketchObject", "Sketch006")
sketch7.AttachmentSupport = (doc.getObject("XZ_Plane"), [""])
sketch7.MapMode = "FlatFace"
sketch7.AttachmentOffset = App.Placement(App.Vector(0, 0, -500), App.Rotation())
sketch7.addGeometry(Part.LineSegment(App.Vector(-246, -176, 0), App.Vector(-246, -76, 0)), False)
sketch7.addGeometry(Part.LineSegment(App.Vector(-246, -76, 0), App.Vector(-236, -76, 0)), False)
sketch7.addGeometry(Part.LineSegment(App.Vector(-236, -76, 0), App.Vector(-236, -176, 0)), False)
sketch7.addGeometry(Part.LineSegment(App.Vector(-236, -176, 0), App.Vector(-246, -176, 0)), False)
sketch7.addConstraint(Sketcher.Constraint("Coincident", 0, 2, 1, 1))
sketch7.addConstraint(Sketcher.Constraint("Coincident", 1, 2, 2, 1))
sketch7.addConstraint(Sketcher.Constraint("Coincident", 2, 2, 3, 1))
sketch7.addConstraint(Sketcher.Constraint("Coincident", 3, 2, 0, 1))
sketch7.addConstraint(Sketcher.Constraint("Vertical", 0))
sketch7.addConstraint(Sketcher.Constraint("Horizontal", 1))
sketch7.addConstraint(Sketcher.Constraint("Vertical", 2))
sketch7.addConstraint(Sketcher.Constraint("Horizontal", 3))
sketch7.addConstraint(Sketcher.Constraint("DistanceX", 1, 1, 1, 2, 10.0))
sketch7.addConstraint(Sketcher.Constraint("DistanceY", 0, 1, 0, 2, 100.0))
sketch7.addConstraint(Sketcher.Constraint("DistanceX", 0, 2, -1, 1, 246.0))
sketch7.addConstraint(Sketcher.Constraint("DistanceY", 0, 2, -1, 1, 76.25))
sketch7.setExpression("Constraints[8]", "Params.sketch7_width")
sketch7.setExpression("Constraints[9]", "Params.sketch7_height")
pad2 = body.newObject("PartDesign::Pad", "Pad001")
pad2.Profile = sketch7
pad2.setExpression("Length", "Params.pad2_length")
pad2.Reversed = True

sketch8 = body.newObject("Sketcher::SketchObject", "Sketch007")
sketch8.AttachmentSupport = (doc.getObject("YZ_Plane"), [""])
sketch8.MapMode = "FlatFace"
sketch8.AttachmentOffset = App.Placement(App.Vector(0, 0, -246), App.Rotation())
sketch8.addGeometry(Part.LineSegment(App.Vector(540, -166, 0), App.Vector(500, -166, 0)), False)
sketch8.addGeometry(Part.LineSegment(App.Vector(500, -166, 0), App.Vector(500, -86, 0)), False)
sketch8.addGeometry(Part.LineSegment(App.Vector(500, -86, 0), App.Vector(540, -86, 0)), False)
sketch8.addGeometry(Part.LineSegment(App.Vector(540, -86, 0), App.Vector(540, -166, 0)), False)
sketch8.addConstraint(Sketcher.Constraint("Coincident", 0, 2, 1, 1))
sketch8.addConstraint(Sketcher.Constraint("Coincident", 1, 2, 2, 1))
sketch8.addConstraint(Sketcher.Constraint("Coincident", 2, 2, 3, 1))
sketch8.addConstraint(Sketcher.Constraint("Coincident", 3, 2, 0, 1))
sketch8.addConstraint(Sketcher.Constraint("Horizontal", 0))
sketch8.addConstraint(Sketcher.Constraint("Vertical", 1))
sketch8.addConstraint(Sketcher.Constraint("Horizontal", 2))
sketch8.addConstraint(Sketcher.Constraint("Vertical", 3))
sketch8.addConstraint(Sketcher.Constraint("DistanceX", 0, 2, 0, 1, 40.0))
sketch8.addConstraint(Sketcher.Constraint("DistanceY", 1, 1, 1, 2, 80.0))
sketch8.addConstraint(Sketcher.Constraint("DistanceX", -1, 1, 0, 2, 500.0))
sketch8.addConstraint(Sketcher.Constraint("DistanceY", 0, 2, -1, 1, 166.25))
sketch8.setExpression("Constraints[8]", "Params.sketch8_width")
sketch8.setExpression("Constraints[9]", "Params.sketch8_height")
pocket6 = body.newObject("PartDesign::Pocket", "Pocket005")
pocket6.Profile = sketch8
pocket6.setExpression("Length", "Params.pocket6_length")
pocket6.Reversed = True

sketch9 = body.newObject("Sketcher::SketchObject", "Sketch008")
sketch9.AttachmentSupport = (doc.getObject("XZ_Plane"), [""])
sketch9.MapMode = "FlatFace"
sketch9.AttachmentOffset = App.Placement(App.Vector(0, 0, -500), App.Rotation())
sketch9.addGeometry(Part.LineSegment(App.Vector(236, -176, 0), App.Vector(236, -76, 0)), False)
sketch9.addGeometry(Part.LineSegment(App.Vector(236, -76, 0), App.Vector(246, -76, 0)), False)
sketch9.addGeometry(Part.LineSegment(App.Vector(246, -76, 0), App.Vector(246, -176, 0)), False)
sketch9.addGeometry(Part.LineSegment(App.Vector(246, -176, 0), App.Vector(236, -176, 0)), False)
sketch9.addConstraint(Sketcher.Constraint("Coincident", 0, 2, 1, 1))
sketch9.addConstraint(Sketcher.Constraint("Coincident", 1, 2, 2, 1))
sketch9.addConstraint(Sketcher.Constraint("Coincident", 2, 2, 3, 1))
sketch9.addConstraint(Sketcher.Constraint("Coincident", 3, 2, 0, 1))
sketch9.addConstraint(Sketcher.Constraint("Vertical", 0))
sketch9.addConstraint(Sketcher.Constraint("Horizontal", 1))
sketch9.addConstraint(Sketcher.Constraint("Vertical", 2))
sketch9.addConstraint(Sketcher.Constraint("Horizontal", 3))
sketch9.addConstraint(Sketcher.Constraint("DistanceX", 1, 1, 1, 2, 10.0))
sketch9.addConstraint(Sketcher.Constraint("DistanceY", 0, 1, 0, 2, 100.0))
sketch9.addConstraint(Sketcher.Constraint("DistanceX", -1, 1, 0, 2, 236.0))
sketch9.addConstraint(Sketcher.Constraint("DistanceY", 0, 2, -1, 1, 76.25))
sketch9.setExpression("Constraints[8]", "Params.sketch9_width")
sketch9.setExpression("Constraints[9]", "Params.sketch9_height")
pad3 = body.newObject("PartDesign::Pad", "Pad002")
pad3.Profile = sketch9
pad3.setExpression("Length", "Params.pad3_length")
pad3.Reversed = True

sketch10 = body.newObject("Sketcher::SketchObject", "Sketch009")
sketch10.AttachmentSupport = (doc.getObject("YZ_Plane"), [""])
sketch10.MapMode = "FlatFace"
sketch10.AttachmentOffset = App.Placement(App.Vector(0, 0, 236), App.Rotation())
sketch10.addGeometry(Part.LineSegment(App.Vector(540, -166, 0), App.Vector(500, -166, 0)), False)
sketch10.addGeometry(Part.LineSegment(App.Vector(500, -166, 0), App.Vector(500, -86, 0)), False)
sketch10.addGeometry(Part.LineSegment(App.Vector(500, -86, 0), App.Vector(540, -86, 0)), False)
sketch10.addGeometry(Part.LineSegment(App.Vector(540, -86, 0), App.Vector(540, -166, 0)), False)
sketch10.addConstraint(Sketcher.Constraint("Coincident", 0, 2, 1, 1))
sketch10.addConstraint(Sketcher.Constraint("Coincident", 1, 2, 2, 1))
sketch10.addConstraint(Sketcher.Constraint("Coincident", 2, 2, 3, 1))
sketch10.addConstraint(Sketcher.Constraint("Coincident", 3, 2, 0, 1))
sketch10.addConstraint(Sketcher.Constraint("Horizontal", 0))
sketch10.addConstraint(Sketcher.Constraint("Vertical", 1))
sketch10.addConstraint(Sketcher.Constraint("Horizontal", 2))
sketch10.addConstraint(Sketcher.Constraint("Vertical", 3))
sketch10.addConstraint(Sketcher.Constraint("DistanceX", 0, 2, 0, 1, 40.0))
sketch10.addConstraint(Sketcher.Constraint("DistanceY", 1, 1, 1, 2, 80.0))
sketch10.addConstraint(Sketcher.Constraint("DistanceX", -1, 1, 0, 2, 500.0))
sketch10.addConstraint(Sketcher.Constraint("DistanceY", 0, 2, -1, 1, 166.25))
sketch10.setExpression("Constraints[8]", "Params.sketch10_width")
sketch10.setExpression("Constraints[9]", "Params.sketch10_height")
pocket7 = body.newObject("PartDesign::Pocket", "Pocket006")
pocket7.Profile = sketch10
pocket7.setExpression("Length", "Params.pocket7_length")
pocket7.Reversed = True

doc.recompute()
